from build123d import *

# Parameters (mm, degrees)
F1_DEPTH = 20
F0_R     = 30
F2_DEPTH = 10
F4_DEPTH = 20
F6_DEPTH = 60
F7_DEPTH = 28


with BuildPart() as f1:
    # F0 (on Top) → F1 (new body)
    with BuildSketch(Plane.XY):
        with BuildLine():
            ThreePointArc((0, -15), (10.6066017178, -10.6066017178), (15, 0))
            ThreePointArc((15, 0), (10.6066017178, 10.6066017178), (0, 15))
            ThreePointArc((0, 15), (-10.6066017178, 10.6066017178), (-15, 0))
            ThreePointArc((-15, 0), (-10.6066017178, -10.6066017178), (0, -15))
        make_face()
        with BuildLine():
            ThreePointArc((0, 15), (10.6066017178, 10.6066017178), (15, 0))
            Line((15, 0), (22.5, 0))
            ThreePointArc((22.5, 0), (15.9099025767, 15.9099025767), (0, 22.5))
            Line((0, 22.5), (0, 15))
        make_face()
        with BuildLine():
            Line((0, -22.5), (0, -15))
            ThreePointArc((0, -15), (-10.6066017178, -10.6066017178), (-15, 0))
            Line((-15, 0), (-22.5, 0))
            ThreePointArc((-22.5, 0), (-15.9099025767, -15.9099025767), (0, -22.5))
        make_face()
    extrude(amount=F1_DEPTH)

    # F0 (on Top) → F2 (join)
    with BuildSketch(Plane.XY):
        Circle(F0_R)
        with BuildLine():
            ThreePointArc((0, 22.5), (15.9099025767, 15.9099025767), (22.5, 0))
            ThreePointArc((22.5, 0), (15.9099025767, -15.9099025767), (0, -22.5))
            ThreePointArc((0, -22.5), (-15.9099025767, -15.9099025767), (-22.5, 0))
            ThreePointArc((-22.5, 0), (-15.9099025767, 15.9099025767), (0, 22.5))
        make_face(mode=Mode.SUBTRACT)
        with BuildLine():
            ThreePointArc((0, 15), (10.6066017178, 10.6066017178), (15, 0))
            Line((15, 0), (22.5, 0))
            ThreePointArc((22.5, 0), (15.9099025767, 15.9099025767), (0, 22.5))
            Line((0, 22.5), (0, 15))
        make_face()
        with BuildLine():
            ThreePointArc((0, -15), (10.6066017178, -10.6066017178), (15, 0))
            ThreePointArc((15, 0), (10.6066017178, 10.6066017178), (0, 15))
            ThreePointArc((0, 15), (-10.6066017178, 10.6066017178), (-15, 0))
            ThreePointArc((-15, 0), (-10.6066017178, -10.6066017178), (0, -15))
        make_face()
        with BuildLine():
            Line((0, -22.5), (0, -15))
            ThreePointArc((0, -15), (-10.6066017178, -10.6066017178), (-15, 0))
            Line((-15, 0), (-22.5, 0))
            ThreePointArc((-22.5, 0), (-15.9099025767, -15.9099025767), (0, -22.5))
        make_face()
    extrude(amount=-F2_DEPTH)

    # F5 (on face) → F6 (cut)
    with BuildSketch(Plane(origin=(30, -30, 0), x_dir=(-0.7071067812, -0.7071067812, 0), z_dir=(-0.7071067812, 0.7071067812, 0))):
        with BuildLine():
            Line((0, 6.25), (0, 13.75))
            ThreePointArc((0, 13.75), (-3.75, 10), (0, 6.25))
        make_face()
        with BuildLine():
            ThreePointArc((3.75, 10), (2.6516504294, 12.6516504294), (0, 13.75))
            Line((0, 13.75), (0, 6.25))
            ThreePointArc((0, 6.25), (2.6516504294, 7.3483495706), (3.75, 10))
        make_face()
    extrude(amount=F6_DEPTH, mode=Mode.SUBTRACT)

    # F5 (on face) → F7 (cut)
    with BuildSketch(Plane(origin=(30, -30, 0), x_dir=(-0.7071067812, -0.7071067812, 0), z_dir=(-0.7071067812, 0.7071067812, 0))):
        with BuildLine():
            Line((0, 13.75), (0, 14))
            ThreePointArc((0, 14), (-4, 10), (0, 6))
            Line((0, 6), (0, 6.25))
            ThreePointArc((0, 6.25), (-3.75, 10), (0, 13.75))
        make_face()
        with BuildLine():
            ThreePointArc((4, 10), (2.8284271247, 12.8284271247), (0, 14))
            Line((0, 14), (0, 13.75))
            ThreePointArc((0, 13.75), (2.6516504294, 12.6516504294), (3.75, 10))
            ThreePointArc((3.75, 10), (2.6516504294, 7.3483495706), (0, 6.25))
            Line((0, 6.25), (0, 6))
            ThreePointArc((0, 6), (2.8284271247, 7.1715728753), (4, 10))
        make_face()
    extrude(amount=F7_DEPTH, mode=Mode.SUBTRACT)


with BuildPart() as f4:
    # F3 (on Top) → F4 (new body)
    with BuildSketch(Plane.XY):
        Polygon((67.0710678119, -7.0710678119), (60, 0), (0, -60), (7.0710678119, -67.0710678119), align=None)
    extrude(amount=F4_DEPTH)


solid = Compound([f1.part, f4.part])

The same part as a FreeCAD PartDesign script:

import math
import FreeCAD as App
import Part
import Sketcher
Q = App.Units.Quantity

doc = App.newDocument("Part")
body = doc.addObject("PartDesign::Body", "Body")

# Sketch on XY plane
sketch1 = body.newObject("Sketcher::SketchObject", "Sketch")
sketch1.AttachmentSupport = (doc.getObject("XY_Plane"), [""])
sketch1.MapMode = "FlatFace"
sketch1.addGeometry(Part.LineSegment(App.Vector(15, 0, 0), App.Vector(22.5, 0, 0)), False)
sketch1.addGeometry(Part.ArcOfCircle(Part.Circle(App.Vector(0, 0, 0), App.Vector(0, 0, 1), 22.5), math.radians(0), math.radians(90)), False)
sketch1.addGeometry(Part.LineSegment(App.Vector(0, 22.5, 0), App.Vector(0, 15, 0)), False)
sketch1.addGeometry(Part.ArcOfCircle(Part.Circle(App.Vector(0, 0, 0), App.Vector(0, 0, 1), 15), math.radians(90), math.radians(180)), False)
sketch1.addGeometry(Part.LineSegment(App.Vector(-15, 0, 0), App.Vector(-22.5, 0, 0)), False)
sketch1.addGeometry(Part.ArcOfCircle(Part.Circle(App.Vector(0, 0, 0), App.Vector(0, 0, 1), 22.5), math.radians(180), math.radians(270)), False)
sketch1.addGeometry(Part.LineSegment(App.Vector(0, -22.5, 0), App.Vector(0, -15, 0)), False)
sketch1.addGeometry(Part.ArcOfCircle(Part.Circle(App.Vector(0, 0, 0), App.Vector(0, 0, 1), 15), math.radians(-90), math.radians(0)), False)
sketch1.addConstraint(Sketcher.Constraint("Coincident", 0, 2, 1, 1))
sketch1.addConstraint(Sketcher.Constraint("Coincident", 1, 2, 2, 1))
sketch1.addConstraint(Sketcher.Constraint("Coincident", 2, 2, 3, 1))
sketch1.addConstraint(Sketcher.Constraint("Coincident", 3, 2, 4, 1))
sketch1.addConstraint(Sketcher.Constraint("Coincident", 4, 2, 5, 1))
sketch1.addConstraint(Sketcher.Constraint("Coincident", 5, 2, 6, 1))
sketch1.addConstraint(Sketcher.Constraint("Coincident", 6, 2, 7, 1))
sketch1.addConstraint(Sketcher.Constraint("Coincident", 7, 2, 0, 1))
sketch1.addConstraint(Sketcher.Constraint("Horizontal", 0))
sketch1.addConstraint(Sketcher.Constraint("Vertical", 2))
sketch1.addConstraint(Sketcher.Constraint("Horizontal", 4))
sketch1.addConstraint(Sketcher.Constraint("Vertical", 6))
sketch1.addConstraint(Sketcher.Constraint("Coincident", 1, 3, -1, 1))
sketch1.addConstraint(Sketcher.Constraint("Coincident", 3, 3, -1, 1))
sketch1.addConstraint(Sketcher.Constraint("Coincident", 5, 3, -1, 1))
sketch1.addConstraint(Sketcher.Constraint("Coincident", 7, 3, -1, 1))
sketch1.addConstraint(Sketcher.Constraint("Equal", 1, 5))
sketch1.addConstraint(Sketcher.Constraint("Equal", 3, 7))
sketch1.addConstraint(Sketcher.Constraint("PointOnObject", 0, 2, -1))
sketch1.addConstraint(Sketcher.Constraint("PointOnObject", 1, 2, -2))
sketch1.addConstraint(Sketcher.Constraint("PointOnObject", 3, 2, -1))
sketch1.addConstraint(Sketcher.Constraint("PointOnObject", 5, 2, -2))
sketch1.addConstraint(Sketcher.Constraint("Radius", 3, 15.0))
sketch1.addConstraint(Sketcher.Constraint("Radius", 1, 22.5))
pad1 = body.newObject("PartDesign::Pad", "Pad")
pad1.Profile = sketch1
pad1.Length = 20

# Sketch on XY plane
sketch2 = body.newObject("Sketcher::SketchObject", "Sketch001")
sketch2.AttachmentSupport = (doc.getObject("XY_Plane"), [""])
sketch2.MapMode = "FlatFace"
sketch2.addGeometry(Part.Circle(App.Vector(0, 0, 0), App.Vector(0, 0, 1), 30), False)
sketch2.addGeometry(Part.LineSegment(App.Vector(0, 22.5, 0), App.Vector(0, 15, 0)), False)
sketch2.addGeometry(Part.ArcOfCircle(Part.Circle(App.Vector(0, 0, 0), App.Vector(0, 0, 1), 15), math.radians(90), math.radians(180)), False)
sketch2.addGeometry(Part.LineSegment(App.Vector(-15, 0, 0), App.Vector(-22.5, 0, 0)), False)
sketch2.addGeometry(Part.ArcOfCircle(Part.Circle(App.Vector(0, 0, 0), App.Vector(0, 0, 1), 22.5), math.radians(90), math.radians(180)), False)
sketch2.addGeometry(Part.ArcOfCircle(Part.Circle(App.Vector(0, 0, 0), App.Vector(0, 0, 1), 15), math.radians(-90), math.radians(0)), False)
sketch2.addGeometry(Part.LineSegment(App.Vector(15, 0, 0), App.Vector(22.5, 0, 0)), False)
sketch2.addGeometry(Part.ArcOfCircle(Part.Circle(App.Vector(0, 0, 0), App.Vector(0, 0, 1), 22.5), math.radians(-90), math.radians(0)), False)
sketch2.addGeometry(Part.LineSegment(App.Vector(0, -22.5, 0), App.Vector(0, -15, 0)), False)
sketch2.addConstraint(Sketcher.Constraint("Coincident", 1, 2, 2, 1))
sketch2.addConstraint(Sketcher.Constraint("Coincident", 2, 2, 3, 1))
sketch2.addConstraint(Sketcher.Constraint("Coincident", 3, 2, 4, 2))
sketch2.addConstraint(Sketcher.Constraint("Coincident", 4, 1, 1, 1))
sketch2.addConstraint(Sketcher.Constraint("Coincident", 5, 2, 6, 1))
sketch2.addConstraint(Sketcher.Constraint("Coincident", 6, 2, 7, 2))
sketch2.addConstraint(Sketcher.Constraint("Coincident", 7, 1, 8, 1))
sketch2.addConstraint(Sketcher.Constraint("Coincident", 8, 2, 5, 1))
sketch2.addConstraint(Sketcher.Constraint("Vertical", 1))
sketch2.addConstraint(Sketcher.Constraint("Horizontal", 3))
sketch2.addConstraint(Sketcher.Constraint("Horizontal", 6))
sketch2.addConstraint(Sketcher.Constraint("Vertical", 8))
sketch2.addConstraint(Sketcher.Constraint("Coincident", 0, 3, -1, 1))
sketch2.addConstraint(Sketcher.Constraint("Coincident", 2, 3, -1, 1))
sketch2.addConstraint(Sketcher.Constraint("Coincident", 4, 3, -1, 1))
sketch2.addConstraint(Sketcher.Constraint("Coincident", 5, 3, -1, 1))
sketch2.addConstraint(Sketcher.Constraint("Coincident", 7, 3, -1, 1))
sketch2.addConstraint(Sketcher.Constraint("Equal", 2, 5))
sketch2.addConstraint(Sketcher.Constraint("Equal", 4, 7))
sketch2.addConstraint(Sketcher.Constraint("PointOnObject", 1, 2, -2))
sketch2.addConstraint(Sketcher.Constraint("PointOnObject", 2, 2, -1))
sketch2.addConstraint(Sketcher.Constraint("PointOnObject", 5, 2, -1))
sketch2.addConstraint(Sketcher.Constraint("PointOnObject", 7, 1, -2))
sketch2.addConstraint(Sketcher.Constraint("Diameter", 0, 60.0))
sketch2.addConstraint(Sketcher.Constraint("Radius", 2, 15.0))
sketch2.addConstraint(Sketcher.Constraint("Radius", 4, 22.5))
pad2 = body.newObject("PartDesign::Pad", "Pad001")
pad2.Profile = sketch2
pad2.Length = 10
pad2.Reversed = True

# Sketch on an angled plane
sketch3 = body.newObject("Sketcher::SketchObject", "Sketch002")
sketch3.Placement = App.Placement(App.Vector(30, -30, 0), App.Rotation(App.Vector(-0.707106781, -0.707106781, 0), App.Vector(0, 0, 0.999999999), App.Vector(-0.707106781, 0.707106781, 0), "ZXY"))
sketch3.addGeometry(Part.ArcOfCircle(Part.Circle(App.Vector(0, 10, 0), App.Vector(0, 0, 1), 3.75), math.radians(90), math.radians(270)), False)
sketch3.addGeometry(Part.ArcOfCircle(Part.Circle(App.Vector(0, 10, 0), App.Vector(0, 0, 1), 3.75), math.radians(-90), math.radians(0)), False)
sketch3.addGeometry(Part.ArcOfCircle(Part.Circle(App.Vector(0, 10, 0), App.Vector(0, 0, 1), 3.75), math.radians(0), math.radians(90)), False)
sketch3.addConstraint(Sketcher.Constraint("Tangent", 0, 2, 1, 1))
sketch3.addConstraint(Sketcher.Constraint("Tangent", 1, 2, 2, 1))
sketch3.addConstraint(Sketcher.Constraint("Tangent", 2, 2, 0, 1))
sketch3.addConstraint(Sketcher.Constraint("PointOnObject", 0, 3, -2))
sketch3.addConstraint(Sketcher.Constraint("PointOnObject", 0, 2, -2))
sketch3.addConstraint(Sketcher.Constraint("PointOnObject", 2, 2, -2))
sketch3.addConstraint(Sketcher.Constraint("Horizontal", 2, 3, 1, 2))
sketch3.addConstraint(Sketcher.Constraint("Radius", 0, 3.75))
sketch3.addConstraint(Sketcher.Constraint("DistanceY", -1, 1, 0, 3, 10.0))
pocket1 = body.newObject("PartDesign::Pocket", "Pocket")
pocket1.Profile = sketch3
pocket1.Length = 60
pocket1.Reversed = True

# Sketch on an angled plane
sketch4 = body.newObject("Sketcher::SketchObject", "Sketch003")
sketch4.Placement = App.Placement(App.Vector(30, -30, 0), App.Rotation(App.Vector(-0.707106781, -0.707106781, 0), App.Vector(0, 0, 0.999999999), App.Vector(-0.707106781, 0.707106781, 0), "ZXY"))
sketch4.addGeometry(Part.ArcOfCircle(Part.Circle(App.Vector(0, 10, 0), App.Vector(0, 0, 1), 4), math.radians(90), math.radians(270)), False)
sketch4.addGeometry(Part.ArcOfCircle(Part.Circle(App.Vector(0, 10, 0), App.Vector(0, 0, 1), 4), math.radians(-90), math.radians(0)), False)
sketch4.addGeometry(Part.ArcOfCircle(Part.Circle(App.Vector(0, 10, 0), App.Vector(0, 0, 1), 4), math.radians(0), math.radians(90)), False)
sketch4.addGeometry(Part.ArcOfCircle(Part.Circle(App.Vector(0, 10, 0), App.Vector(0, 0, 1), 3.75), math.radians(90), math.radians(270)), False)
sketch4.addGeometry(Part.ArcOfCircle(Part.Circle(App.Vector(0, 10, 0), App.Vector(0, 0, 1), 3.75), math.radians(0), math.radians(90)), False)
sketch4.addGeometry(Part.ArcOfCircle(Part.Circle(App.Vector(0, 10, 0), App.Vector(0, 0, 1), 3.75), math.radians(-90), math.radians(0)), False)
sketch4.addConstraint(Sketcher.Constraint("Tangent", 0, 2, 1, 1))
sketch4.addConstraint(Sketcher.Constraint("Tangent", 1, 2, 2, 1))
sketch4.addConstraint(Sketcher.Constraint("Tangent", 2, 2, 0, 1))
sketch4.addConstraint(Sketcher.Constraint("Tangent", 3, 1, 4, 2))
sketch4.addConstraint(Sketcher.Constraint("Tangent", 4, 1, 5, 2))
sketch4.addConstraint(Sketcher.Constraint("Tangent", 5, 1, 3, 2))
sketch4.addConstraint(Sketcher.Constraint("Coincident", 3, 3, 0, 3))
sketch4.addConstraint(Sketcher.Constraint("PointOnObject", 0, 3, -2))
sketch4.addConstraint(Sketcher.Constraint("PointOnObject", 0, 2, -2))
sketch4.addConstraint(Sketcher.Constraint("PointOnObject", 2, 2, -2))
sketch4.addConstraint(Sketcher.Constraint("PointOnObject", 3, 1, -2))
sketch4.addConstraint(Sketcher.Constraint("PointOnObject", 5, 1, -2))
sketch4.addConstraint(Sketcher.Constraint("Horizontal", 5, 3, 1, 2))
sketch4.addConstraint(Sketcher.Constraint("Horizontal", 1, 2, 4, 1))
sketch4.addConstraint(Sketcher.Constraint("Radius", 0, 4.0))
sketch4.addConstraint(Sketcher.Constraint("Radius", 3, 3.75))
sketch4.addConstraint(Sketcher.Constraint("DistanceY", -1, 1, 0, 3, 10.0))
pocket2 = body.newObject("PartDesign::Pocket", "Pocket001")
pocket2.Profile = sketch4
pocket2.Length = 28
pocket2.Reversed = True
body2 = doc.addObject("PartDesign::Body", "Body001")

# Sketch on XY plane
sketch5 = body2.newObject("Sketcher::SketchObject", "Sketch004")
sketch5.AttachmentSupport = (doc.getObject("XY_Plane001"), [""])
sketch5.MapMode = "FlatFace"
sketch5.addGeometry(Part.LineSegment(App.Vector(67.071068, -7.071068, 0), App.Vector(60, 0, 0)), False)
sketch5.addGeometry(Part.LineSegment(App.Vector(60, 0, 0), App.Vector(0, -60, 0)), False)
sketch5.addGeometry(Part.LineSegment(App.Vector(0, -60, 0), App.Vector(7.071068, -67.071068, 0)), False)
sketch5.addGeometry(Part.LineSegment(App.Vector(7.071068, -67.071068, 0), App.Vector(67.071068, -7.071068, 0)), False)
sketch5.addConstraint(Sketcher.Constraint("Coincident", 0, 2, 1, 1))
sketch5.addConstraint(Sketcher.Constraint("Coincident", 1, 2, 2, 1))
sketch5.addConstraint(Sketcher.Constraint("Coincident", 2, 2, 3, 1))
sketch5.addConstraint(Sketcher.Constraint("Coincident", 3, 2, 0, 1))
sketch5.addConstraint(Sketcher.Constraint("PointOnObject", 0, 2, -1))
sketch5.addConstraint(Sketcher.Constraint("PointOnObject", 1, 2, -2))
sketch5.addConstraint(Sketcher.Constraint("Perpendicular", 0, 1))
sketch5.addConstraint(Sketcher.Constraint("Perpendicular", 1, 2))
sketch5.addConstraint(Sketcher.Constraint("Perpendicular", 2, 3))
sketch5.addConstraint(Sketcher.Constraint("Angle", 0, Q("135 deg")))
sketch5.addConstraint(Sketcher.Constraint("Distance", 0, 10.0))
sketch5.addConstraint(Sketcher.Constraint("DistanceX", -1, 1, 0, 2, 60.0))
pad3 = body2.newObject("PartDesign::Pad", "Pad002")
pad3.Profile = sketch5
pad3.Length = 20

doc.recompute()
